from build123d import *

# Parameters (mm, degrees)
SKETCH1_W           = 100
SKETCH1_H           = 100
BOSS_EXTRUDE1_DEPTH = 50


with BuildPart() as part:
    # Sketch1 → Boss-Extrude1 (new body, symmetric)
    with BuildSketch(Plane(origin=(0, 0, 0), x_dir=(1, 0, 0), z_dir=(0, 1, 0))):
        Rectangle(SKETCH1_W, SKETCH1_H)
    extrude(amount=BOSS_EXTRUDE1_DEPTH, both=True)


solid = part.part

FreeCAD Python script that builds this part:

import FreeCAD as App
import Part
import Sketcher
Q = App.Units.Quantity


def add_polygon(sketch, points):
    """Adds a closed chain of lines whose ends are joined by coincident constraints."""
    first, n = sketch.GeometryCount, len(points)
    for a, b in zip(points, points[1:] + points[:1]):
        sketch.addGeometry(Part.LineSegment(App.Vector(*a, 0), App.Vector(*b, 0)), False)
    for i in range(n):
        sketch.addConstraint(Sketcher.Constraint("Coincident", first + i, 2, first + (i + 1) % n, 1))

doc = App.newDocument("Part")
body = doc.addObject("PartDesign::Body", "Body")

# Sketch on XZ plane
sketch1 = body.newObject("Sketcher::SketchObject", "Sketch")
sketch1.AttachmentSupport = (doc.getObject("XZ_Plane"), [""])
sketch1.MapMode = "FlatFace"
add_polygon(sketch1, [(-50, -50), (-50, 50), (50, 50), (50, -50)])  # lines 0-3
sketch1.addConstraint(Sketcher.Constraint("Vertical", 0))
sketch1.addConstraint(Sketcher.Constraint("Horizontal", 1))
sketch1.addConstraint(Sketcher.Constraint("Vertical", 2))
sketch1.addConstraint(Sketcher.Constraint("Horizontal", 3))
sketch1.addConstraint(Sketcher.Constraint("Symmetric", 0, 2, 2, 2, -1, 1))
sketch1.addConstraint(Sketcher.Constraint("Equal", 3, 0))
sketch1.addConstraint(Sketcher.Constraint("DistanceX", 1, 1, 1, 2, Q("100 mm")))
pad1 = body.newObject("PartDesign::Pad", "Pad")
pad1.Profile = sketch1
pad1.Length = 100
pad1.Midplane = True

doc.recompute()
